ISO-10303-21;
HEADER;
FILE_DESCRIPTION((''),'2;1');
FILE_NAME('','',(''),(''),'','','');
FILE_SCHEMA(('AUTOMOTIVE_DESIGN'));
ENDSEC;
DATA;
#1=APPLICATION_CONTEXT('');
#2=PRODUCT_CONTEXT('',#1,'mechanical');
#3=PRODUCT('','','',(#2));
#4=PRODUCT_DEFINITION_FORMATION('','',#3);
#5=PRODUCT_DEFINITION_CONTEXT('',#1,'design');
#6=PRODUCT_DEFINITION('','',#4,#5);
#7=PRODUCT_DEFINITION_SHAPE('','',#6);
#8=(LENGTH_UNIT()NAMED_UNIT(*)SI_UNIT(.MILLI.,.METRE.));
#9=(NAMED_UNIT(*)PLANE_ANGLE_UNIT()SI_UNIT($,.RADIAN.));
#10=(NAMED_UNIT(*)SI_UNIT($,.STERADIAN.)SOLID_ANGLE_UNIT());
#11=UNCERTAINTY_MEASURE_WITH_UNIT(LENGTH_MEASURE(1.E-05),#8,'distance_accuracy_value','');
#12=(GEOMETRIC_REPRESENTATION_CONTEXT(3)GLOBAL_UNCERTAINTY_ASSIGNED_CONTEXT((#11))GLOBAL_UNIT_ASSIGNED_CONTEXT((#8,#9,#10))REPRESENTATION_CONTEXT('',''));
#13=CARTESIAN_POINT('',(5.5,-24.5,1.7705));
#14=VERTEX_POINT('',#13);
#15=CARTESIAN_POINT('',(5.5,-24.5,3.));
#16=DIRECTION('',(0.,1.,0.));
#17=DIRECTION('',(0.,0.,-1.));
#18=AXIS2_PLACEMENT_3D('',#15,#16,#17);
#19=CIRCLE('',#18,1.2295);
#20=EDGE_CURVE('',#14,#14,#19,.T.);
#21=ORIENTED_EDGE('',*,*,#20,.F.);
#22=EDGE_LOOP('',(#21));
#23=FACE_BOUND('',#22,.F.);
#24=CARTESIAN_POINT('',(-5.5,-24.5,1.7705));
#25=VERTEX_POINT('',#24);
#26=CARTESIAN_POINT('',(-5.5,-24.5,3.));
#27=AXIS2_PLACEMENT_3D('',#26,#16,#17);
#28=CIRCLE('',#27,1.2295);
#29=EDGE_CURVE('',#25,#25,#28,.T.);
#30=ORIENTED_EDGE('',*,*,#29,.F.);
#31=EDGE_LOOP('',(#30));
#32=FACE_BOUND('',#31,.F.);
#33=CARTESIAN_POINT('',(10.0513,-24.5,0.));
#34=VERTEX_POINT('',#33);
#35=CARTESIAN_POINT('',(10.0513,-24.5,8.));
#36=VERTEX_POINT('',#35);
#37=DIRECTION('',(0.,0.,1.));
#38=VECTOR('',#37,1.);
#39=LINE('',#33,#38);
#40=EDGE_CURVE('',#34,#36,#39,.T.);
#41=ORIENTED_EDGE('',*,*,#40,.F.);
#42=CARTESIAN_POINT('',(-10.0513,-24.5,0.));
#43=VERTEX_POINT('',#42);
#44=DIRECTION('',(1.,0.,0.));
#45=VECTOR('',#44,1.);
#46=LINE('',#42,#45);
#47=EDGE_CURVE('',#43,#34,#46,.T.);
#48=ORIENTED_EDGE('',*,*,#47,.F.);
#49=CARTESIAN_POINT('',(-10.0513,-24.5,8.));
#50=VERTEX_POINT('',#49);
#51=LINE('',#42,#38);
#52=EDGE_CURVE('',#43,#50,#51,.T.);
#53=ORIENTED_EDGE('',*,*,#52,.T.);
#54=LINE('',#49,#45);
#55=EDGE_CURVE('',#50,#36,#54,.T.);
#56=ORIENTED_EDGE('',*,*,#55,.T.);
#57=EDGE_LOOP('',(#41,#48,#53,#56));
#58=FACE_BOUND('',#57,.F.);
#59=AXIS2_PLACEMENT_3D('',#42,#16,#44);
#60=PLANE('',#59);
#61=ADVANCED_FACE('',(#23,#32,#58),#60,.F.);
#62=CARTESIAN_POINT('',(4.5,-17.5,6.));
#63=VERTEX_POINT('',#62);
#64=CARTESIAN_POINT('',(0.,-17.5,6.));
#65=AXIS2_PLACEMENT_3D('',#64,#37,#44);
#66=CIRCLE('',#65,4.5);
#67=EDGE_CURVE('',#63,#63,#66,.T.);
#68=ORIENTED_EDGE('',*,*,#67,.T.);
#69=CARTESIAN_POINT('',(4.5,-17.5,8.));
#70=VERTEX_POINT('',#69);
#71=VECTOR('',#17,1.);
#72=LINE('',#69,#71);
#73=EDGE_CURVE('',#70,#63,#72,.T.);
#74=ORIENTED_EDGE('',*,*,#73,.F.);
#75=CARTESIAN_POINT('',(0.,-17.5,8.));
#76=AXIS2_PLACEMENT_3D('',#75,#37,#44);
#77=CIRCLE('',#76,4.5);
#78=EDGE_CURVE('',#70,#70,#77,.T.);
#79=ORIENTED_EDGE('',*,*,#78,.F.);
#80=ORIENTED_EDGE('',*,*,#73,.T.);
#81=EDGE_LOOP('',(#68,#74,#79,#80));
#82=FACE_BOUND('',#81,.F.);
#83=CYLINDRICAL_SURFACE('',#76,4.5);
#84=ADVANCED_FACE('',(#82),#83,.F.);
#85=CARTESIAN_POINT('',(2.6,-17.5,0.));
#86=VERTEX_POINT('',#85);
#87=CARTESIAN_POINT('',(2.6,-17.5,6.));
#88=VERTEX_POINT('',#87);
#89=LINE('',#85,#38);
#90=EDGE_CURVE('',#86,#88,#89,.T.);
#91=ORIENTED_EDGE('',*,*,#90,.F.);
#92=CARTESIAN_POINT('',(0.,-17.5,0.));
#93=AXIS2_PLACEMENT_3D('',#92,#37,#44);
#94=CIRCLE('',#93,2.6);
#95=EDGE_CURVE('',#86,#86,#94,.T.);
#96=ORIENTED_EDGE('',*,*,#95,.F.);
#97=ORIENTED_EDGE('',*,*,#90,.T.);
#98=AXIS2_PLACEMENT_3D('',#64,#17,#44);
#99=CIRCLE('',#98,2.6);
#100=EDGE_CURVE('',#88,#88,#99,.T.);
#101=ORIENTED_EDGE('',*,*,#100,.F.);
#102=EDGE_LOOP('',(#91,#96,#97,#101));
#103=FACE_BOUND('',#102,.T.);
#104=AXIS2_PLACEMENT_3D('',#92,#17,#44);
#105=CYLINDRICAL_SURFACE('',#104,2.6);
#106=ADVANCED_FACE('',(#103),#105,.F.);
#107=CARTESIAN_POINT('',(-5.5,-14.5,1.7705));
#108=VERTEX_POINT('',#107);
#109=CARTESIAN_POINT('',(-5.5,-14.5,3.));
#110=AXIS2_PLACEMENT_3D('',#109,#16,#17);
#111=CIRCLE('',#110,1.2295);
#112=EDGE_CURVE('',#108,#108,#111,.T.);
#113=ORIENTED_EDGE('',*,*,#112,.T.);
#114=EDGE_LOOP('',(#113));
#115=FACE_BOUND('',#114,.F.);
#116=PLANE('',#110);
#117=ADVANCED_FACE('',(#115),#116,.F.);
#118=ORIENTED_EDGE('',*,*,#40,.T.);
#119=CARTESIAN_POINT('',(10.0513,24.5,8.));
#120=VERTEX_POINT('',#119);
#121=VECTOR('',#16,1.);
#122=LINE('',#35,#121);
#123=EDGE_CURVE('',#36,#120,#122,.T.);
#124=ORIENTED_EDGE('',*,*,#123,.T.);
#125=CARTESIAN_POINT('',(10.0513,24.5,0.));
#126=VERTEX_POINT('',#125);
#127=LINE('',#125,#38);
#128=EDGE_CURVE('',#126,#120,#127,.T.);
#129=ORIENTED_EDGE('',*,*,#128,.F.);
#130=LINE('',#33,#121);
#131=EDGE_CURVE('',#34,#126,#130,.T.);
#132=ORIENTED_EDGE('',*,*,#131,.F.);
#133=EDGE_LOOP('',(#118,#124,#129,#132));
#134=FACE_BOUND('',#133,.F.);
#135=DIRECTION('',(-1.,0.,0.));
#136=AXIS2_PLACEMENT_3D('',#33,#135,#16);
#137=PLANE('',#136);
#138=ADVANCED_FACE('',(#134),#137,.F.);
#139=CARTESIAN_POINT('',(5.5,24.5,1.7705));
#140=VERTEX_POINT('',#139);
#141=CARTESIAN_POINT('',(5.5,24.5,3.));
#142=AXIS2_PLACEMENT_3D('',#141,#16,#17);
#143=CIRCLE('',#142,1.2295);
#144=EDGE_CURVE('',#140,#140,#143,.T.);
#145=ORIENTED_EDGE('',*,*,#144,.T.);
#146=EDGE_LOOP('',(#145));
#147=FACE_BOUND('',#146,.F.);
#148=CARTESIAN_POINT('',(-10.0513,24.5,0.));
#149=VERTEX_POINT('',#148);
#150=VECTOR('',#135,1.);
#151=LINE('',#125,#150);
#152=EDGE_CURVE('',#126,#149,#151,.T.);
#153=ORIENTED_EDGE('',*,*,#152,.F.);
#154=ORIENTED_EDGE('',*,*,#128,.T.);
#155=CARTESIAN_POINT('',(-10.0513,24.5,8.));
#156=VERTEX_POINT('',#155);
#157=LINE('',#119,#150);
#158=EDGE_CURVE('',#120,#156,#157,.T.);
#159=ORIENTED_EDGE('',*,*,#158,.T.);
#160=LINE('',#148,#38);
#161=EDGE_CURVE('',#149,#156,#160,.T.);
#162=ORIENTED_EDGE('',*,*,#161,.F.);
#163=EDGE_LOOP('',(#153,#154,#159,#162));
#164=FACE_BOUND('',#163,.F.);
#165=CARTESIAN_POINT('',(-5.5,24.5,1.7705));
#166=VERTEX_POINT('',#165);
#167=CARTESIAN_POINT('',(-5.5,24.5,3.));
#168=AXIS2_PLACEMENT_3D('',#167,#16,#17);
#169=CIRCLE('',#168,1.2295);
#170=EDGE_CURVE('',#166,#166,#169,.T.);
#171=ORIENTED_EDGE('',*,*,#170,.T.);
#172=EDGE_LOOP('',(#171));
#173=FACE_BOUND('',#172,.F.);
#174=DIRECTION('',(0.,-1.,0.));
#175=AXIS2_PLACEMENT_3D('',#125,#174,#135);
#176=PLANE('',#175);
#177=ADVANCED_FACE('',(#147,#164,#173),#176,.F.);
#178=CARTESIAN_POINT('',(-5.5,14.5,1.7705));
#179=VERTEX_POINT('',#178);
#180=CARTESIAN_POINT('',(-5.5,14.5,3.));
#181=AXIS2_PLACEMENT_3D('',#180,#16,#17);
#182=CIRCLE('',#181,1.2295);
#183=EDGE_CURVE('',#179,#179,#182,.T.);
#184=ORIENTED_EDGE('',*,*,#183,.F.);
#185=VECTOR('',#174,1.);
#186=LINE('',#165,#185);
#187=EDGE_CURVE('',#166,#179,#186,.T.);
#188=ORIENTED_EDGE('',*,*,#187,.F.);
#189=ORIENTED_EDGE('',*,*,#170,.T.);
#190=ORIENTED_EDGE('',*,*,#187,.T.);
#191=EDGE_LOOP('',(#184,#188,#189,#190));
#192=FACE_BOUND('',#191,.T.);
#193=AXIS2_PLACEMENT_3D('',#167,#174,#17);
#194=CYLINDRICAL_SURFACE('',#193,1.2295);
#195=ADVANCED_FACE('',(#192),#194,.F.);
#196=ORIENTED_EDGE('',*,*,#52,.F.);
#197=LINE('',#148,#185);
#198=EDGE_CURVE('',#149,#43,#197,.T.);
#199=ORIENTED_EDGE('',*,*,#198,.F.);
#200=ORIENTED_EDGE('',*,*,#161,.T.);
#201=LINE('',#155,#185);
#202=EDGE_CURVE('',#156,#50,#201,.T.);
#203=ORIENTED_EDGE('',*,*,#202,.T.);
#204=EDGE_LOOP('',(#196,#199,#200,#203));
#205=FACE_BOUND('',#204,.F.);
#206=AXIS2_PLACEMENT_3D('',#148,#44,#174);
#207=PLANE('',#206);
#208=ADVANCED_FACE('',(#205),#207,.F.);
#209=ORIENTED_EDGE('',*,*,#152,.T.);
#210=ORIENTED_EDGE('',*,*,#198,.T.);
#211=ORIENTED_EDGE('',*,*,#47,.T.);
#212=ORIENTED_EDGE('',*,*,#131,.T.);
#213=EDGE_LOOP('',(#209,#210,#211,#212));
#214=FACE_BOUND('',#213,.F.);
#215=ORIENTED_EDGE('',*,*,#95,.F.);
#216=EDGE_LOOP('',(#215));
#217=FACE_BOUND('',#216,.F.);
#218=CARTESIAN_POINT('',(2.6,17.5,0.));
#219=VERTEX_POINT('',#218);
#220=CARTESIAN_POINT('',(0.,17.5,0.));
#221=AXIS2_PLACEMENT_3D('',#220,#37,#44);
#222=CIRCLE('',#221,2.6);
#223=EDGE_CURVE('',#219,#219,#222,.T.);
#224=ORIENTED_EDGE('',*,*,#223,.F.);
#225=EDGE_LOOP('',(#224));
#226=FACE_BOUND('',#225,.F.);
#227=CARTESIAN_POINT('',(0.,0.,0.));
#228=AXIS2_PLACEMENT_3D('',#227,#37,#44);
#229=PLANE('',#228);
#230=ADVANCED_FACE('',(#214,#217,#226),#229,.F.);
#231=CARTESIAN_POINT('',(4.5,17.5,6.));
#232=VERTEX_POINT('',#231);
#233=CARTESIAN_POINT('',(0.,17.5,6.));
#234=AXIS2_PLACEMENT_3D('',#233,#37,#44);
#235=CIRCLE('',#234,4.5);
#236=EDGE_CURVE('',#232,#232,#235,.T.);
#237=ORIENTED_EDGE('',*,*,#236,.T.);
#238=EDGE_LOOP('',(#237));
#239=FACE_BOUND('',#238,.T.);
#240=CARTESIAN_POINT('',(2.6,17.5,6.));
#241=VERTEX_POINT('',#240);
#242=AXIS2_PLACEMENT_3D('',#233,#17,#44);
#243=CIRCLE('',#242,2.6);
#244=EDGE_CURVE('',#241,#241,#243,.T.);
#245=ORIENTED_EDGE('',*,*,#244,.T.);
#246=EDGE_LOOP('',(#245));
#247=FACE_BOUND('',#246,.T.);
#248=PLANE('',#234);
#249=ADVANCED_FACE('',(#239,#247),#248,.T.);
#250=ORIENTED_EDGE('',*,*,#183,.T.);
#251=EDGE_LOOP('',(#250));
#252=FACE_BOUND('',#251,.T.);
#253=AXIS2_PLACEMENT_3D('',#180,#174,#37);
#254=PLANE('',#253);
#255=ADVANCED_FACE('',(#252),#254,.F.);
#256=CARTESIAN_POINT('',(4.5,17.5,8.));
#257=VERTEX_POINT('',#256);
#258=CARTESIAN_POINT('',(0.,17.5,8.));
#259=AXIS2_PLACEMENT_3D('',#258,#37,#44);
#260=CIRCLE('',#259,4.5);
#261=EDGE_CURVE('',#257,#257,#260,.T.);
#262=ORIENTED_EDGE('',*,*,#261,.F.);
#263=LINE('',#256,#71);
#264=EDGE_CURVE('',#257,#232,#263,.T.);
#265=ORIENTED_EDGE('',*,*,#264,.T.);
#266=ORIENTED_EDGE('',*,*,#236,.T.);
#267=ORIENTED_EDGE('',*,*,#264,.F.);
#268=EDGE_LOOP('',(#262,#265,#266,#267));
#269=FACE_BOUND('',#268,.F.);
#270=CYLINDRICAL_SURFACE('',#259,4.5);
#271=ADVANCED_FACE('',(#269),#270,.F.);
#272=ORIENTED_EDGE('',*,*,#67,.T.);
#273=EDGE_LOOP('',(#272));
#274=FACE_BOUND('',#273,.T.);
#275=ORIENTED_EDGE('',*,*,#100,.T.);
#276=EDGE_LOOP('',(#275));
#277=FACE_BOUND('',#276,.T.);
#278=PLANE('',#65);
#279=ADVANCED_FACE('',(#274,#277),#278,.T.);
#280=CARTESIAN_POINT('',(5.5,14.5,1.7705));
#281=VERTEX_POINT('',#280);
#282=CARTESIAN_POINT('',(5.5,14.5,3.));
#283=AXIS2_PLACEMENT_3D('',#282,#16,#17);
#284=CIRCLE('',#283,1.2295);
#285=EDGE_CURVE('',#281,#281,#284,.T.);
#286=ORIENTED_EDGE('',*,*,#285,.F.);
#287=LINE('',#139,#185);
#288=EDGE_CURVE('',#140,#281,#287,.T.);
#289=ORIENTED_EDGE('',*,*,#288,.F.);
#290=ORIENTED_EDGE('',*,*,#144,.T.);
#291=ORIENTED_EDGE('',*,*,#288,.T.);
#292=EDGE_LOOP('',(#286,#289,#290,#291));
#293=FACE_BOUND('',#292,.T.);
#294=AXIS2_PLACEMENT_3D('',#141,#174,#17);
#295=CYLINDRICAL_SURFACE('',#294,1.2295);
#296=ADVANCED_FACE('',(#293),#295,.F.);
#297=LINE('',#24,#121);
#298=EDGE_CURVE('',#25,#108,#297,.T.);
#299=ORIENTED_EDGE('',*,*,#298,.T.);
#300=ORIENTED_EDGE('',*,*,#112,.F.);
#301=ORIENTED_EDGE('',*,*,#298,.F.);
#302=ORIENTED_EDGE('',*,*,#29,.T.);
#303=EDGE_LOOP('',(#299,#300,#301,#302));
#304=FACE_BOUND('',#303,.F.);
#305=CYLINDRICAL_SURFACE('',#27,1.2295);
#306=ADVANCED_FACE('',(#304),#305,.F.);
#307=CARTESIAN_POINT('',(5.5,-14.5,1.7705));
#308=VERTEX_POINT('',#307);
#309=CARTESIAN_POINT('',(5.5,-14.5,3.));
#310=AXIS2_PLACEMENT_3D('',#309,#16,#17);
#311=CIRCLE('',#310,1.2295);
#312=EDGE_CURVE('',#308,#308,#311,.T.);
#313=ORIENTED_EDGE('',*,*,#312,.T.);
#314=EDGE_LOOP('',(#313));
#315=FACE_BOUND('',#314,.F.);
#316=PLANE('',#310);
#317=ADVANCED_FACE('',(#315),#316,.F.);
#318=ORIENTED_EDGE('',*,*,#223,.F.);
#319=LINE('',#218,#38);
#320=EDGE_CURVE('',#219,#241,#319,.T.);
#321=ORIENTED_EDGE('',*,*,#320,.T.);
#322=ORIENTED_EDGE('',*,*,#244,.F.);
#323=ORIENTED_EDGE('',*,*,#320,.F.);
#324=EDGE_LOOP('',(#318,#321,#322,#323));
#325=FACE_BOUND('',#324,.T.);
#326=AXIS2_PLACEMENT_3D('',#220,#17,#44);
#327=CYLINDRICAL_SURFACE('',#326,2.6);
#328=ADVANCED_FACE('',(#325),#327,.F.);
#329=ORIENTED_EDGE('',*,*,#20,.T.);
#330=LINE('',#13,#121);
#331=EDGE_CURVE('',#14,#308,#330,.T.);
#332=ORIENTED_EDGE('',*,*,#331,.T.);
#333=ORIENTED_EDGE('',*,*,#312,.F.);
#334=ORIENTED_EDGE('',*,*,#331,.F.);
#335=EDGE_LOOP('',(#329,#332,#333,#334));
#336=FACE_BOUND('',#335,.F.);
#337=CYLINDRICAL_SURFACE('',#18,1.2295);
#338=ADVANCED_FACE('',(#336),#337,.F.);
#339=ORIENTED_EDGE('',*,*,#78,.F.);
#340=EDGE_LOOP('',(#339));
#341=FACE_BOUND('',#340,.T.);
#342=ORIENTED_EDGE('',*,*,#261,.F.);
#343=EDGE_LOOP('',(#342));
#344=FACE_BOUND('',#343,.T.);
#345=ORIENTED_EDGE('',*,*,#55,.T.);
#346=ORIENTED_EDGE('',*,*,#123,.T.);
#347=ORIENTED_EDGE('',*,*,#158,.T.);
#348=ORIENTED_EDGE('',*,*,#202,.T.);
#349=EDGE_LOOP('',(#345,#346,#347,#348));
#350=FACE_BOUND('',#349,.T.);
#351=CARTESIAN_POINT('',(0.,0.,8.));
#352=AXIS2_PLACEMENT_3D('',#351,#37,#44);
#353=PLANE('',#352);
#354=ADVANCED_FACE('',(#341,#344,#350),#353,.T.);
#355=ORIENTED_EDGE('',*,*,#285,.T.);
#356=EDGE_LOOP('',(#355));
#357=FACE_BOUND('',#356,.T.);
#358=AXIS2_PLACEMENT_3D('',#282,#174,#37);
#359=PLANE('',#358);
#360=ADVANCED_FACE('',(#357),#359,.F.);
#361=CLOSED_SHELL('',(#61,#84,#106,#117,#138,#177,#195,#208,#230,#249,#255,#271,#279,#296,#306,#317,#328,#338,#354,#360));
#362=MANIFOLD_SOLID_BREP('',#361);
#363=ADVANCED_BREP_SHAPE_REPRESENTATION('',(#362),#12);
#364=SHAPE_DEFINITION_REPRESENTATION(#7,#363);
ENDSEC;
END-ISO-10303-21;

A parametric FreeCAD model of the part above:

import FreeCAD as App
import Part
import Sketcher
from FreeCAD import Vector

doc = App.newDocument("Part")
body = doc.addObject("PartDesign::Body", "Body")

sketch1 = body.newObject("Sketcher::SketchObject", "Sketch")
sketch1.AttachmentSupport = (doc.getObject("XY_Plane"), [""])
sketch1.MapMode = "FlatFace"
sketch1.addGeometry(Part.LineSegment(Vector(-10.0513, 24.5, 0), Vector(-10.0513, -24.5, 0)), False)
sketch1.addGeometry(Part.LineSegment(Vector(-10.0513, -24.5, 0), Vector(10.0513, -24.5, 0)), False)
sketch1.addGeometry(Part.LineSegment(Vector(10.0513, -24.5, 0), Vector(10.0513, 24.5, 0)), False)
sketch1.addGeometry(Part.LineSegment(Vector(10.0513, 24.5, 0), Vector(-10.0513, 24.5, 0)), False)
sketch1.addGeometry(Part.Circle(Vector(0, -17.5, 0), Vector(0, 0, 1), 2.6), False)
sketch1.addGeometry(Part.Circle(Vector(0, 17.5, 0), Vector(0, 0, 1), 2.6), False)
sketch1.addConstraint(Sketcher.Constraint("Coincident", 0, 2, 1, 1))
sketch1.addConstraint(Sketcher.Constraint("Coincident", 1, 2, 2, 1))
sketch1.addConstraint(Sketcher.Constraint("Coincident", 2, 2, 3, 1))
sketch1.addConstraint(Sketcher.Constraint("Coincident", 3, 2, 0, 1))
sketch1.addConstraint(Sketcher.Constraint("Vertical", 0))
sketch1.addConstraint(Sketcher.Constraint("Horizontal", 1))
sketch1.addConstraint(Sketcher.Constraint("Vertical", 2))
sketch1.addConstraint(Sketcher.Constraint("Horizontal", 3))
sketch1.addConstraint(Sketcher.Constraint("Equal", 4, 5))
sketch1.addConstraint(Sketcher.Constraint("Symmetric", 4, 3, 5, 3, -1, 1))
sketch1.addConstraint(Sketcher.Constraint("Symmetric", 0, 2, 2, 2, -1, 1))
sketch1.addConstraint(Sketcher.Constraint("PointOnObject", 4, 3, -2))
sketch1.addConstraint(Sketcher.Constraint("Diameter", 4, 5.2))
sketch1.addConstraint(Sketcher.Constraint("DistanceY", 0, 2, 0, 1, 49.0))
sketch1.addConstraint(Sketcher.Constraint("DistanceY", 4, 3, 5, 3, 35.0))
sketch1.addConstraint(Sketcher.Constraint("DistanceX", 1, 1, 1, 2, 20.1026))
pad1 = body.newObject("PartDesign::Pad", "Pad")
pad1.Profile = sketch1
pad1.Length = 8

sketch2 = body.newObject("Sketcher::SketchObject", "Sketch001")
sketch2.AttachmentSupport = (doc.getObject("XY_Plane"), [""])
sketch2.MapMode = "FlatFace"
sketch2.AttachmentOffset = App.Placement(Vector(0, 0, 8), App.Rotation())
sketch2.addGeometry(Part.Circle(Vector(0, 17.5, 0), Vector(0, 0, 1), 4.5), False)
sketch2.addGeometry(Part.Circle(Vector(0, -17.5, 0), Vector(0, 0, 1), 4.5), False)
sketch2.addConstraint(Sketcher.Constraint("Equal", 0, 1))
sketch2.addConstraint(Sketcher.Constraint("Symmetric", 0, 3, 1, 3, -1, 1))
sketch2.addConstraint(Sketcher.Constraint("PointOnObject", 0, 3, -2))
sketch2.addConstraint(Sketcher.Constraint("Diameter", 0, 9.0))
sketch2.addConstraint(Sketcher.Constraint("DistanceY", 1, 3, 0, 3, 35.0))
pocket1 = body.newObject("PartDesign::Pocket", "Pocket")
pocket1.Profile = sketch2
pocket1.Length = 2

sketch3 = body.newObject("Sketcher::SketchObject", "Sketch002")
sketch3.AttachmentSupport = (doc.getObject("XZ_Plane"), [""])
sketch3.MapMode = "FlatFace"
sketch3.AttachmentOffset = App.Placement(Vector(0, 0, 24.5), App.Rotation())
sketch3.addGeometry(Part.Circle(Vector(-5.5, 3, 0), Vector(0, 0, 1), 1.2295), False)
sketch3.addConstraint(Sketcher.Constraint("Diameter", 0, 2.459))
sketch3.addConstraint(Sketcher.Constraint("DistanceY", -1, 1, 0, 3, 3.0))
sketch3.addConstraint(Sketcher.Constraint("DistanceX", 0, 3, -1, 1, 5.5))
doc.recompute()
hole = body.newObject("PartDesign::Hole", "Hole")
hole.Profile = sketch3
hole.ThreadType = "None"
hole.Diameter = 2.459
hole.DepthType = "Dimension"
hole.Depth = 10
hole.DrillPoint = "Flat"

sketch4 = body.newObject("Sketcher::SketchObject", "Sketch003")
sketch4.AttachmentSupport = (doc.getObject("XZ_Plane"), [""])
sketch4.MapMode = "FlatFace"
sketch4.AttachmentOffset = App.Placement(Vector(0, 0, 24.5), App.Rotation())
sketch4.addGeometry(Part.Circle(Vector(5.5, 3, 0), Vector(0, 0, 1), 1.2295), False)
sketch4.addConstraint(Sketcher.Constraint("Diameter", 0, 2.459))
sketch4.addConstraint(Sketcher.Constraint("DistanceY", -1, 1, 0, 3, 3.0))
sketch4.addConstraint(Sketcher.Constraint("DistanceX", -1, 1, 0, 3, 5.5))
doc.recompute()
hole2 = body.newObject("PartDesign::Hole", "Hole001")
hole2.Profile = sketch4
hole2.ThreadType = "None"
hole2.Diameter = 2.459
hole2.DepthType = "Dimension"
hole2.Depth = 10
hole2.DrillPoint = "Flat"
doc.recompute()

mirrored = body.newObject("PartDesign::Mirrored", "Mirrored")
mirrored.Originals = [hole, hole2]
mirrored.MirrorPlane = (doc.getObject("XZ_Plane"), [""])
body.Tip = mirrored

doc.recompute()
